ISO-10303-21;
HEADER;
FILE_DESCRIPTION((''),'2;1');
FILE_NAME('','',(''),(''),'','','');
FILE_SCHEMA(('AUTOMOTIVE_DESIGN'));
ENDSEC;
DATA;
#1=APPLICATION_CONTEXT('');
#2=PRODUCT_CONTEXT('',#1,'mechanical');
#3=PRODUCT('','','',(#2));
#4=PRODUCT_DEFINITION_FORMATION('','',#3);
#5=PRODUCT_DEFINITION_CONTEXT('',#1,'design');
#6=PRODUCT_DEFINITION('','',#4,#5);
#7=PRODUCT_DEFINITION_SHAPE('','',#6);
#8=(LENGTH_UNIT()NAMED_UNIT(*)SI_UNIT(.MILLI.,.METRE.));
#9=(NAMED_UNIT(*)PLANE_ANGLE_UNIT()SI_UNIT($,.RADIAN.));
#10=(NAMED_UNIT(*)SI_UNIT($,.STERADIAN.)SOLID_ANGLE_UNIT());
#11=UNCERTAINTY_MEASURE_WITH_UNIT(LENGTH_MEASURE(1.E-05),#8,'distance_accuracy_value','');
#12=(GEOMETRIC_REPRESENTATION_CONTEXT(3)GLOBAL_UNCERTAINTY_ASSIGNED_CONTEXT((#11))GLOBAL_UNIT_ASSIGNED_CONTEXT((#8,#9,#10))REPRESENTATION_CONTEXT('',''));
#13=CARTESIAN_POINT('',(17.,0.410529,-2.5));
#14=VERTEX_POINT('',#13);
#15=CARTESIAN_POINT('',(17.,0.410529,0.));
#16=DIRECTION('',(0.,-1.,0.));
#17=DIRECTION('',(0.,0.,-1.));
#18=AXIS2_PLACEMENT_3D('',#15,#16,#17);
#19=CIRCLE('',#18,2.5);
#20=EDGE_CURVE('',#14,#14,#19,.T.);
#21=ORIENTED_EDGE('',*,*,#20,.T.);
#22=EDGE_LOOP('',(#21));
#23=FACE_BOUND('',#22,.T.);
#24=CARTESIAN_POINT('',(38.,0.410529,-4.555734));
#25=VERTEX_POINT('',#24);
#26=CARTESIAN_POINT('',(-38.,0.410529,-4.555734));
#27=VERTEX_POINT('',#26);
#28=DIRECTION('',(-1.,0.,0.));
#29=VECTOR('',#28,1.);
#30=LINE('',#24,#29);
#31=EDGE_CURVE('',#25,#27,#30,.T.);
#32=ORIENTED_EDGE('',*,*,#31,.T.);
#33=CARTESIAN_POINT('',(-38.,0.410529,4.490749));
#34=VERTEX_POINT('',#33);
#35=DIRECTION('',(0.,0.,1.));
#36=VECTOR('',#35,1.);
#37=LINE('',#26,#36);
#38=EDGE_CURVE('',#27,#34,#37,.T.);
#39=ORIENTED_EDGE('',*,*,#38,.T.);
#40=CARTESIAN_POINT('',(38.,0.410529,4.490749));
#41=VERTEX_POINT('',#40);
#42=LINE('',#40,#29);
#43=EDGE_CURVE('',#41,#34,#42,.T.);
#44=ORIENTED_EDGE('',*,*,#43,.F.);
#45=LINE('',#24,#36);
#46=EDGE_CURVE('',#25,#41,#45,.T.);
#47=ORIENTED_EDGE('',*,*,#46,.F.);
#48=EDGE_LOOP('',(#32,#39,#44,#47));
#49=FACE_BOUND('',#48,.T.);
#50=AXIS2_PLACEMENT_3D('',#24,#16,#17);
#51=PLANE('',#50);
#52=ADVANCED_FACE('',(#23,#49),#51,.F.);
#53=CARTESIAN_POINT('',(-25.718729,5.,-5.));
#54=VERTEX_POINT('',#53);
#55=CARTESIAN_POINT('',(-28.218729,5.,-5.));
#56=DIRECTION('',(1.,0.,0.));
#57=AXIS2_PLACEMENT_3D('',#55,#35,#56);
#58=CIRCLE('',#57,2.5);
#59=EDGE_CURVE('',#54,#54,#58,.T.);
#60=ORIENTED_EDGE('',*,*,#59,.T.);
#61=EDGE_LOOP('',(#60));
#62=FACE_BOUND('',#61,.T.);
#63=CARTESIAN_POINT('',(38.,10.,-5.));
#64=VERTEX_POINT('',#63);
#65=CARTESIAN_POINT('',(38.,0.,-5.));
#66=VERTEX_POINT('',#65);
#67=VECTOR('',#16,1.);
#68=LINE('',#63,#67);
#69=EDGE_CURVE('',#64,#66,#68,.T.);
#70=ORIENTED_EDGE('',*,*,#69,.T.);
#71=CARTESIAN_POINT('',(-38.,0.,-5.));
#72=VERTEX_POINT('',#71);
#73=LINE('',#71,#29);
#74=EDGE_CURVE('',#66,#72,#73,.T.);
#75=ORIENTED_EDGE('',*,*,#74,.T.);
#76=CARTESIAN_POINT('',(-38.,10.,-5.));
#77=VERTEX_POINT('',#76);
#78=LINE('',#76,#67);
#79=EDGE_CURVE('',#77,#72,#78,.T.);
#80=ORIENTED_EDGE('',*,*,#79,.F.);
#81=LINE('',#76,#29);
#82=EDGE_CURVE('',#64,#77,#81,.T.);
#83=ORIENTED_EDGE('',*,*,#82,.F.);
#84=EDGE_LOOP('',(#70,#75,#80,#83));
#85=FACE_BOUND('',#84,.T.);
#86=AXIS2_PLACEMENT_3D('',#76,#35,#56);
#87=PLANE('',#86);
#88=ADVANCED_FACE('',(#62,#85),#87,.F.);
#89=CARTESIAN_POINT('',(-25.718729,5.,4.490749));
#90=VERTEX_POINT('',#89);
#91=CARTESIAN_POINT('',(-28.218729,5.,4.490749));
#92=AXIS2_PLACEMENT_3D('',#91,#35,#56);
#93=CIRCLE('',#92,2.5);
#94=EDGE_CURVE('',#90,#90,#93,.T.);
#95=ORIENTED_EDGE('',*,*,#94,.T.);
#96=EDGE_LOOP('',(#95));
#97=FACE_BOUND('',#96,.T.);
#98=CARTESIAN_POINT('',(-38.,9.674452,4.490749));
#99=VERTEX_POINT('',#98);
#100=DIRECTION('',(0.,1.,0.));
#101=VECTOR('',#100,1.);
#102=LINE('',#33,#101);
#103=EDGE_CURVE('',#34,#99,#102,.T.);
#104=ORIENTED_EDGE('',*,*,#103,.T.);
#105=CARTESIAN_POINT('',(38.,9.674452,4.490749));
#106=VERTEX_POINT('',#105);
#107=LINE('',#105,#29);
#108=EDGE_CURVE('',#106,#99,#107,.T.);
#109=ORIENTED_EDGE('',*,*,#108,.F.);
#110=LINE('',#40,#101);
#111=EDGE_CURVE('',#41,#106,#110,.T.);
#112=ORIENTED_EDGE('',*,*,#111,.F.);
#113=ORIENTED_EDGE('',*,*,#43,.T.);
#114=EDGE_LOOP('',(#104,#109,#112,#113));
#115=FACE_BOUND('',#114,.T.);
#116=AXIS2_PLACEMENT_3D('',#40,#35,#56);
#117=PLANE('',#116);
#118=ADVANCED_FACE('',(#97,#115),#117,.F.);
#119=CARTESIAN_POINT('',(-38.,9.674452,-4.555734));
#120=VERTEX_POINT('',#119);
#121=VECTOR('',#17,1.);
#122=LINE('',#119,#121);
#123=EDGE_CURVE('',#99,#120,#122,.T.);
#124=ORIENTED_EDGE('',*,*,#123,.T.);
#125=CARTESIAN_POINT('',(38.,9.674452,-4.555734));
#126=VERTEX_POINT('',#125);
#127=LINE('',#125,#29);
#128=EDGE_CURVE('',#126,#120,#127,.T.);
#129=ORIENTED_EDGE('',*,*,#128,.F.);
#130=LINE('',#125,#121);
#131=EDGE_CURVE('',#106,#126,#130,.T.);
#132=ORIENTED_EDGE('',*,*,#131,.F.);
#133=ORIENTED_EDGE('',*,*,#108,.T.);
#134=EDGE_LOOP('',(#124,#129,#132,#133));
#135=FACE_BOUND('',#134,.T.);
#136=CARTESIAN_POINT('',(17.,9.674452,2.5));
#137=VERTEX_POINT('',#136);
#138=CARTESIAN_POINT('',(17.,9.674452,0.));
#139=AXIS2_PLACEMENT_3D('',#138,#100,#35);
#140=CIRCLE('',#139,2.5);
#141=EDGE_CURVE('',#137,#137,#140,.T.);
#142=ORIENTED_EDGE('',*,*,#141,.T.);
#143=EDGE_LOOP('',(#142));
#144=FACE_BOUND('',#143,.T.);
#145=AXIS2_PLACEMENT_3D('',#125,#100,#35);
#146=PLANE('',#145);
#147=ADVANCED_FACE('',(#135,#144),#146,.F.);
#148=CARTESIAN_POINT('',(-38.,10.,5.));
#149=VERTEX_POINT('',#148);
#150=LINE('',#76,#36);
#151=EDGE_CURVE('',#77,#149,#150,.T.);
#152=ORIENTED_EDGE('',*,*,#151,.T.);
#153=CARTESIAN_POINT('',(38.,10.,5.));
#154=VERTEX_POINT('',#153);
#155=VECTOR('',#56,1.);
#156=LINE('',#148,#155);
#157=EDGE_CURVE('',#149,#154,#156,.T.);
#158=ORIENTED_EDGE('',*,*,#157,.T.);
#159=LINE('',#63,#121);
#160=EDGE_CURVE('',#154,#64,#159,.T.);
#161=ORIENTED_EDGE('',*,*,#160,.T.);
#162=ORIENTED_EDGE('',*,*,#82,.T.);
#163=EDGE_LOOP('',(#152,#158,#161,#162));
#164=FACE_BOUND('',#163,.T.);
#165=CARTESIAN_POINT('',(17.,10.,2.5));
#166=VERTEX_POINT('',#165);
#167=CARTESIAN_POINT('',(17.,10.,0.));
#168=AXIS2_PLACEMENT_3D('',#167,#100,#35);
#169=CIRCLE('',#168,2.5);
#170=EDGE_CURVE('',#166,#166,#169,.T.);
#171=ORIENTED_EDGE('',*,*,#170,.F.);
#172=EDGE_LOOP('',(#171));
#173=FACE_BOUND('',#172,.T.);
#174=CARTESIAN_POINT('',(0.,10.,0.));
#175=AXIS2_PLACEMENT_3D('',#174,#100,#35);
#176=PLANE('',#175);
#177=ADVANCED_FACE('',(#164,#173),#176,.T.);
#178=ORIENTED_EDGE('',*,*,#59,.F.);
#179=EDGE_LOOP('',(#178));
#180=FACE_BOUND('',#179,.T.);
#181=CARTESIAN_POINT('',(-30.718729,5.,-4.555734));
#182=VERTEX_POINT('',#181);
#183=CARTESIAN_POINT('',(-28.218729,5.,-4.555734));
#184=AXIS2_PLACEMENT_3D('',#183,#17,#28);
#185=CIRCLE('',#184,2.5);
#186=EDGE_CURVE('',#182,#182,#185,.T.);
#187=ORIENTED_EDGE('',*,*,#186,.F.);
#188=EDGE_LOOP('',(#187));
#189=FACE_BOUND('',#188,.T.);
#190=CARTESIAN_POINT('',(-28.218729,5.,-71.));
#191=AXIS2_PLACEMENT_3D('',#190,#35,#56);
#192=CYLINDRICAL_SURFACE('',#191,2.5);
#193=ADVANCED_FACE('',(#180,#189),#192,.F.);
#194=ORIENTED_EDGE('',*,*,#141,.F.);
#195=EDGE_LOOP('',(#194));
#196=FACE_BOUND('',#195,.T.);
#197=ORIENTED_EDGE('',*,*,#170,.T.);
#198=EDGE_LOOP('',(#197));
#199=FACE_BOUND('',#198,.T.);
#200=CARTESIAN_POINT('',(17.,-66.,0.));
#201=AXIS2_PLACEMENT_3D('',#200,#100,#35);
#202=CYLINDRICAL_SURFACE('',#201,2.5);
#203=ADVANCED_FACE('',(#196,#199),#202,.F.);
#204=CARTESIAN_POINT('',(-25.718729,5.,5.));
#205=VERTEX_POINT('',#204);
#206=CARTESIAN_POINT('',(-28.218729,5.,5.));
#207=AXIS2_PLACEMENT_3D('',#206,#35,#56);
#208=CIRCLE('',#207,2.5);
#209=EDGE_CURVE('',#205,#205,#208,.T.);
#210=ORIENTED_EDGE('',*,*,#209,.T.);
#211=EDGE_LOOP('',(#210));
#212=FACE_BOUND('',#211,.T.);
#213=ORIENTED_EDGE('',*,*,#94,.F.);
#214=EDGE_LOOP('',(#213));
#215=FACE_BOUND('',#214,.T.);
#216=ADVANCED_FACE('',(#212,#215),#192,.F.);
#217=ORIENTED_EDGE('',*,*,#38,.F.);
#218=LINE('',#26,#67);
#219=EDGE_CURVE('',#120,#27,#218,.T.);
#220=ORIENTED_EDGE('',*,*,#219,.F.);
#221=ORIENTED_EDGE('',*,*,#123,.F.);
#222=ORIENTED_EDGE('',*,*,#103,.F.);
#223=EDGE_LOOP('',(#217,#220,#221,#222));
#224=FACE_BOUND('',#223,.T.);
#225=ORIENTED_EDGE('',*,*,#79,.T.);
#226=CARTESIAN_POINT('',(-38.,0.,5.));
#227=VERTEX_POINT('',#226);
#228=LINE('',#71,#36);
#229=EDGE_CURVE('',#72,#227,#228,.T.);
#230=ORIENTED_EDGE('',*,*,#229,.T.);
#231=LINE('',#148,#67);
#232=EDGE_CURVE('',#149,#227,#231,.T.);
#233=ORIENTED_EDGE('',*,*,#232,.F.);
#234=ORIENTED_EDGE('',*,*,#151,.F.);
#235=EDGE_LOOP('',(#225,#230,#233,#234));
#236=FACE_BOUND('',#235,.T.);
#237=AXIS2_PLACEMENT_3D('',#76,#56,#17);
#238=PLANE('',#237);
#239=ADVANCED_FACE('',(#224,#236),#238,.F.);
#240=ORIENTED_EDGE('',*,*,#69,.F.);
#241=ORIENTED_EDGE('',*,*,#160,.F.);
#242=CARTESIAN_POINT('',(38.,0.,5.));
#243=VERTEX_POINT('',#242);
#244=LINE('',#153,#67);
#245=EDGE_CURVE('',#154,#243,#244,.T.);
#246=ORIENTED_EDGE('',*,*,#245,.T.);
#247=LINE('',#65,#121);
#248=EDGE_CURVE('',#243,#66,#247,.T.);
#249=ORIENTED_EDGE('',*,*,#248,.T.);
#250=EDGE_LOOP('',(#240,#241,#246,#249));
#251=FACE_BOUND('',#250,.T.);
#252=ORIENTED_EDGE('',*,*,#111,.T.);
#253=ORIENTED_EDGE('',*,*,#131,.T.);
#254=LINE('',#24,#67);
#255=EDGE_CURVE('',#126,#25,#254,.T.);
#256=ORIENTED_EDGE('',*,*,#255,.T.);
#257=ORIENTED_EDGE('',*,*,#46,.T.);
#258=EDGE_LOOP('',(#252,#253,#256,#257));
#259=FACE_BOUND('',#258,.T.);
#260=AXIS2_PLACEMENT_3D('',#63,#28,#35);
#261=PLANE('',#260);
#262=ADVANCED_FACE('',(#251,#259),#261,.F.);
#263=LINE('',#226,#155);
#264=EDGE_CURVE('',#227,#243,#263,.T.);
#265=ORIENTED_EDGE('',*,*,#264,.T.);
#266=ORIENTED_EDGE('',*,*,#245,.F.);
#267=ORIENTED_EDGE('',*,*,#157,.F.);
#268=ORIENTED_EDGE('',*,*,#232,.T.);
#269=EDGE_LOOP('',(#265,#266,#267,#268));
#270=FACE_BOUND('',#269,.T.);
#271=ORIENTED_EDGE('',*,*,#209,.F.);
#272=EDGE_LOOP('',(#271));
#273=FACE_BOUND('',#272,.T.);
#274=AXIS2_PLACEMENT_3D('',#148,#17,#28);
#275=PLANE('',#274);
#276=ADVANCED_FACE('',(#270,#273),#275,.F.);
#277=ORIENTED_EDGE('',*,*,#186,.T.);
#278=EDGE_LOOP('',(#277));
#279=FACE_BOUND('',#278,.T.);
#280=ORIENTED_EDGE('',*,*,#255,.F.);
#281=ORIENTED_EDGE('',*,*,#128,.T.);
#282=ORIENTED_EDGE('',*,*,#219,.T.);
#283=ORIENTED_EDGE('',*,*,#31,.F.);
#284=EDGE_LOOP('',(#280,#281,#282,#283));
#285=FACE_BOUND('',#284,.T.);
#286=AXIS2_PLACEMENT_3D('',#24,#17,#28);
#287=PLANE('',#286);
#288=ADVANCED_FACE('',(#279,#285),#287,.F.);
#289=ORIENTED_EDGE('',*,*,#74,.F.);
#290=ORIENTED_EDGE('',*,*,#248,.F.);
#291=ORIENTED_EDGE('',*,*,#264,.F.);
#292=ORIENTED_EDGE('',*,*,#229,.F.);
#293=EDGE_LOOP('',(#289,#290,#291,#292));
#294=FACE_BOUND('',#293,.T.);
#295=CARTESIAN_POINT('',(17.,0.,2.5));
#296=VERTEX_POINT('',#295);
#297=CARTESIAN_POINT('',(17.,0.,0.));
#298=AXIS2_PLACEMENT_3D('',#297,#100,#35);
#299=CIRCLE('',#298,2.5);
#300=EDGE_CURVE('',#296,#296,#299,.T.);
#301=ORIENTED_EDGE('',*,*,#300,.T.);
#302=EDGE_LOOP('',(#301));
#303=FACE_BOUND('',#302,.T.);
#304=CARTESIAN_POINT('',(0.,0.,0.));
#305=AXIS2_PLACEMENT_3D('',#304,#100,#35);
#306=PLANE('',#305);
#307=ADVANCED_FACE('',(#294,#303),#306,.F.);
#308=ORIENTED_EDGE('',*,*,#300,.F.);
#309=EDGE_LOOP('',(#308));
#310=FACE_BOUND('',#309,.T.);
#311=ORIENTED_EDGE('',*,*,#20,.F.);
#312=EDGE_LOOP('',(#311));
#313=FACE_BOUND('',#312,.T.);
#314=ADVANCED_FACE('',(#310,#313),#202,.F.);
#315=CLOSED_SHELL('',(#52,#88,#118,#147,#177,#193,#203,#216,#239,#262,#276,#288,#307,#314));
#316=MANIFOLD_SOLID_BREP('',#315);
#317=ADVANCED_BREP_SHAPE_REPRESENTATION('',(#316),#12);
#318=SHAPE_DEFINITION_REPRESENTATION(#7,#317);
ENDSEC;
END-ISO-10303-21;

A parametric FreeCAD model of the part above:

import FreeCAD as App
import Part
import Sketcher
Q = App.Units.Quantity


def add_polygon(sketch, points):
    """Adds a closed chain of lines whose ends are joined by coincident constraints."""
    first, n = sketch.GeometryCount, len(points)
    for a, b in zip(points, points[1:] + points[:1]):
        sketch.addGeometry(Part.LineSegment(App.Vector(*a, 0), App.Vector(*b, 0)), False)
    for i in range(n):
        sketch.addConstraint(Sketcher.Constraint("Coincident", first + i, 2, first + (i + 1) % n, 1))

doc = App.newDocument("Part")
body = doc.addObject("PartDesign::Body", "Body")

# Sketch on XZ plane
sketch1 = doc.addObject("Sketcher::SketchObject", "Sketch")
body.addObject(sketch1)
sketch1.AttachmentSupport = (doc.XZ_Plane, [""])
sketch1.MapMode = "FlatFace"
add_polygon(sketch1, [(-38, -5), (-38, 5), (38, 5), (38, -5)])  # lines 0-3
sketch1.addConstraint([
    Sketcher.Constraint("Vertical", 0),
    Sketcher.Constraint("Horizontal", 1),
    Sketcher.Constraint("Vertical", 2),
    Sketcher.Constraint("Horizontal", 3),
    Sketcher.Constraint("Symmetric", 0, 2, 2, 2, -1, 1),
    Sketcher.Constraint("DistanceX", 1, 1, 1, 2, Q("76 mm")),
    Sketcher.Constraint("DistanceY", 0, 1, 0, 2, Q("10 mm")),
])
pad1 = doc.addObject("PartDesign::Pad", "Pad")
body.addObject(pad1)
pad1.Profile = sketch1
pad1.Length = 10
pad1.Reversed = True

# Sketch on YZ plane
sketch2 = doc.addObject("Sketcher::SketchObject", "Sketch001")
body.addObject(sketch2)
sketch2.AttachmentSupport = (doc.YZ_Plane, [""])
sketch2.MapMode = "FlatFace"
sketch2.AttachmentOffset = App.Placement(App.Vector(0, 0, -38), App.Rotation())
add_polygon(sketch2, [(9.674452, -4.555734), (0.410529, -4.555734), (0.410529, 4.490749), (9.674452, 4.490749)])  # lines 0-3
sketch2.addConstraint([
    Sketcher.Constraint("Horizontal", 0),
    Sketcher.Constraint("Vertical", 1),
    Sketcher.Constraint("Horizontal", 2),
    Sketcher.Constraint("Vertical", 3),
    Sketcher.Constraint("DistanceX", 0, 2, 0, 1, Q("9.263923 mm")),
    Sketcher.Constraint("DistanceY", 1, 1, 1, 2, Q("9.046483 mm")),
    Sketcher.Constraint("DistanceX", -1, 1, 0, 2, Q("0.410529 mm")),
    Sketcher.Constraint("DistanceY", -1, 1, 1, 2, Q("4.490749 mm")),
])
pocket1 = doc.addObject("PartDesign::Pocket", "Pocket")
body.addObject(pocket1)
pocket1.Profile = sketch2
pocket1.Type = "ThroughAll"
pocket1.Reversed = True

# Sketch on XY plane
sketch3 = doc.addObject("Sketcher::SketchObject", "Sketch002")
body.addObject(sketch3)
sketch3.AttachmentSupport = (doc.XY_Plane, [""])
sketch3.MapMode = "FlatFace"
sketch3.AttachmentOffset = App.Placement(App.Vector(0, 0, 5), App.Rotation())
sketch3.addGeometry(Part.Circle(App.Vector(-28.218729, 5, 0), App.Vector(0, 0, 1), 2.5), False)
sketch3.addConstraint([
    Sketcher.Constraint("Diameter", 0, Q("5 mm")),
    Sketcher.Constraint("DistanceY", -1, 1, 0, 3, Q("5 mm")),
    Sketcher.Constraint("DistanceX", 0, 3, -1, 1, Q("28.218729 mm")),
])
pocket2 = doc.addObject("PartDesign::Pocket", "Pocket001")
body.addObject(pocket2)
pocket2.Profile = sketch3
pocket2.Length = 76

# Sketch on XZ plane
sketch4 = doc.addObject("Sketcher::SketchObject", "Sketch003")
body.addObject(sketch4)
sketch4.AttachmentSupport = (doc.XZ_Plane, [""])
sketch4.MapMode = "FlatFace"
sketch4.AttachmentOffset = App.Placement(App.Vector(0, 0, -10), App.Rotation())
sketch4.addGeometry(Part.Circle(App.Vector(17, 0, 0), App.Vector(0, 0, 1), 2.5), False)
sketch4.addConstraint([
    Sketcher.Constraint("PointOnObject", 0, 3, -1),
    Sketcher.Constraint("Diameter", 0, Q("5 mm")),
    Sketcher.Constraint("DistanceX", -1, 1, 0, 3, Q("17 mm")),
])
pocket3 = doc.addObject("PartDesign::Pocket", "Pocket002")
body.addObject(pocket3)
pocket3.Profile = sketch4
pocket3.Length = 76
pocket3.Reversed = True

doc.recompute()
